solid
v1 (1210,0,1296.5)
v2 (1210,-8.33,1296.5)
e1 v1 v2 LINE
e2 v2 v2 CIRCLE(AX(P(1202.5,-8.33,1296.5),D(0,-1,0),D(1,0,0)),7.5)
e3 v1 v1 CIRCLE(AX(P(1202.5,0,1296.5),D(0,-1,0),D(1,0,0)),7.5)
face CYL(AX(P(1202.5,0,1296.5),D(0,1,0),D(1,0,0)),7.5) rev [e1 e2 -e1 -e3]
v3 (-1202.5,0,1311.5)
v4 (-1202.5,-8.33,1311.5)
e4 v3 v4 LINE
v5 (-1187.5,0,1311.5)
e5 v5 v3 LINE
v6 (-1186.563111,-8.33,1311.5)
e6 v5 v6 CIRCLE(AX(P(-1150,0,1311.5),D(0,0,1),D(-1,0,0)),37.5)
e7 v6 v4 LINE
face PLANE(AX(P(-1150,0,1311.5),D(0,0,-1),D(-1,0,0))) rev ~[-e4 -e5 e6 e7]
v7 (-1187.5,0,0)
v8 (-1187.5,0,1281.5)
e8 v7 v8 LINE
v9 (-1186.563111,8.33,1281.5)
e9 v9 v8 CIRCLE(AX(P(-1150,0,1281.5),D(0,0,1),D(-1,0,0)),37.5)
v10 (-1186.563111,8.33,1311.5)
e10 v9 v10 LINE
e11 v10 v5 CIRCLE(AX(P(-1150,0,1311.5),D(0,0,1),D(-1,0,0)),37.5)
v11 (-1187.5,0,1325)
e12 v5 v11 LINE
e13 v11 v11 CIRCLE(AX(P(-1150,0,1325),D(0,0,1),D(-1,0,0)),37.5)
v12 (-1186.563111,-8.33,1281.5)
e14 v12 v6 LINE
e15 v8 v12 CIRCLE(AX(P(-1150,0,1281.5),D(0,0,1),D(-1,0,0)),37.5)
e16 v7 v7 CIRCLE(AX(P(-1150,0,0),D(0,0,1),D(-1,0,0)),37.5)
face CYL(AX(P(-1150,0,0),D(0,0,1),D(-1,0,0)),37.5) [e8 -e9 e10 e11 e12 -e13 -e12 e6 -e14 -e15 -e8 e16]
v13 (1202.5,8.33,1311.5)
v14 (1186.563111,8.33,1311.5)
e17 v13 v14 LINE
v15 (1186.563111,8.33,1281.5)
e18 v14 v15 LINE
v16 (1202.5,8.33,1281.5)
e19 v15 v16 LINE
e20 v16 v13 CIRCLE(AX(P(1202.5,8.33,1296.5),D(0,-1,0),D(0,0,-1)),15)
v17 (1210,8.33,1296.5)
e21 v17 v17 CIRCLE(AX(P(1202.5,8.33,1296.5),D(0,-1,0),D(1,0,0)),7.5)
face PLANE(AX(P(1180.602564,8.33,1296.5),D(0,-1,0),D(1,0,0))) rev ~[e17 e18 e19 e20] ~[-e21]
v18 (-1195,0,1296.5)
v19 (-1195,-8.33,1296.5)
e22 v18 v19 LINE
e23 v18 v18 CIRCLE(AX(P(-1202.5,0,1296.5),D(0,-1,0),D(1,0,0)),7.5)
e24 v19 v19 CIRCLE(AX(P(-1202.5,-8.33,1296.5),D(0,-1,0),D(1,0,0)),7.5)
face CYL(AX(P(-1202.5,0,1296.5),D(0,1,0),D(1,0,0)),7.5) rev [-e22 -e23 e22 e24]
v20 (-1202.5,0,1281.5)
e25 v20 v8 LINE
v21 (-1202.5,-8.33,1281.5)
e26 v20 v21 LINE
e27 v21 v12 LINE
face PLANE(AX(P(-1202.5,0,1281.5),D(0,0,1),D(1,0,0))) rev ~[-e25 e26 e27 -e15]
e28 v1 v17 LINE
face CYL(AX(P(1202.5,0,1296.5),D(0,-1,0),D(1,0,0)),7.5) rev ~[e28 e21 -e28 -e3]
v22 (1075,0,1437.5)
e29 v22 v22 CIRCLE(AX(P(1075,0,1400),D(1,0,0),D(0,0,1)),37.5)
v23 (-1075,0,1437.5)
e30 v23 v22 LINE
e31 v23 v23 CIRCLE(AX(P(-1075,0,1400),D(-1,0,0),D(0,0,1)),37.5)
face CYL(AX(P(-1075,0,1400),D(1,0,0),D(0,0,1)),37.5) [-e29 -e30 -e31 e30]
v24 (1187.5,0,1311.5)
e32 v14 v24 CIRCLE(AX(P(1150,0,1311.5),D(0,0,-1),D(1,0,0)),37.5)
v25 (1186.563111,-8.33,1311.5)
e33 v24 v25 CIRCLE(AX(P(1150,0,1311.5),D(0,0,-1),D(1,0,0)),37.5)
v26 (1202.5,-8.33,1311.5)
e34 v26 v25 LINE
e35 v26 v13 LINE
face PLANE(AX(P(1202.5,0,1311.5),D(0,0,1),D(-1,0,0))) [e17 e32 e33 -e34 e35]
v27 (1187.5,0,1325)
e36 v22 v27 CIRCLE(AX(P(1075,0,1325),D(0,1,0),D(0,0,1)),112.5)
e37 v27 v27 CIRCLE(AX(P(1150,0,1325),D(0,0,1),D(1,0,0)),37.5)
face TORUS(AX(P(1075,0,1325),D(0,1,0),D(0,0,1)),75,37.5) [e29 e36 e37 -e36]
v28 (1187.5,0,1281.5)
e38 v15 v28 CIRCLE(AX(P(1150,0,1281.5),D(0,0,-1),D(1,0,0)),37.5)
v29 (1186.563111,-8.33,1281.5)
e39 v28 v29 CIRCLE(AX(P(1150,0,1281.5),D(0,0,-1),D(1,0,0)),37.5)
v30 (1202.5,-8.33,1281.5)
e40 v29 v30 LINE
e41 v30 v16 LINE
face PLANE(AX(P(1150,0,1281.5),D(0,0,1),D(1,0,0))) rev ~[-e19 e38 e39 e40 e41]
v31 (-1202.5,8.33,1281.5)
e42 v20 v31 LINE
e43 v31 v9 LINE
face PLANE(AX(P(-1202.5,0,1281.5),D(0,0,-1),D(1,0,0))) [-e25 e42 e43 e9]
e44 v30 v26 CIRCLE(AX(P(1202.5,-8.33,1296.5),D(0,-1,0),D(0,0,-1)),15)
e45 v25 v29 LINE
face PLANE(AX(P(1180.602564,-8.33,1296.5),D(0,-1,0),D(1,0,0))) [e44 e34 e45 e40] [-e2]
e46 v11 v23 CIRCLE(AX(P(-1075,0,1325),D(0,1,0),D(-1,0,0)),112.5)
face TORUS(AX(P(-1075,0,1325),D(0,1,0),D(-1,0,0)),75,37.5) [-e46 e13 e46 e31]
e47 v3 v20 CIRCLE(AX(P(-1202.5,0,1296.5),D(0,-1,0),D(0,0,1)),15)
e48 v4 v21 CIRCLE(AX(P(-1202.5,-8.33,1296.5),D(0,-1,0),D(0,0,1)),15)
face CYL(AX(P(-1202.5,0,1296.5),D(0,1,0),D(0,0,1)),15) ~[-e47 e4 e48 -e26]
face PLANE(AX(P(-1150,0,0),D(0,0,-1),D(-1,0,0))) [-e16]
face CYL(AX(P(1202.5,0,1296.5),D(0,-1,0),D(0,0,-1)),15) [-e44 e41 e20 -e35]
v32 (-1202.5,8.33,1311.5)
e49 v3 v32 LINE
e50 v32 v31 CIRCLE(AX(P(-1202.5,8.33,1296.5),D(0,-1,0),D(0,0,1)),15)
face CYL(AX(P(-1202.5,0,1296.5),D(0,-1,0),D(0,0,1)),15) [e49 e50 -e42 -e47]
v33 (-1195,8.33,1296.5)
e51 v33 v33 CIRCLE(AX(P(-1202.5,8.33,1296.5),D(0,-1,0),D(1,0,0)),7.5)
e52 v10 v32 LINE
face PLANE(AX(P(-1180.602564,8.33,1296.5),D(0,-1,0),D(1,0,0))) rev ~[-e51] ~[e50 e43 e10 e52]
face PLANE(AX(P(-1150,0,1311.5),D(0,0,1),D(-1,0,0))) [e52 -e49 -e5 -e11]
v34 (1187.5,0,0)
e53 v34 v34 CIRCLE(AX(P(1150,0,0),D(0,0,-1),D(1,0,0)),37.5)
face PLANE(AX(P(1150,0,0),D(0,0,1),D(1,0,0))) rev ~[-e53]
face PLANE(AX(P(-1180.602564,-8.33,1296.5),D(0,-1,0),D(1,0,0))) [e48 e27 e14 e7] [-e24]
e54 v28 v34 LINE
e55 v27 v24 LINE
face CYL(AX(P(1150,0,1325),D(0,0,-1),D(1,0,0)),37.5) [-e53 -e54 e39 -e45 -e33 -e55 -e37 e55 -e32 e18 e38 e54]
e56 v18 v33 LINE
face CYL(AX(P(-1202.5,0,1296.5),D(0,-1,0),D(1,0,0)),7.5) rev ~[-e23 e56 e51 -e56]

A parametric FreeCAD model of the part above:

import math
import FreeCAD as App
import Part
import Sketcher

V = App.Vector

doc = App.newDocument("Part")
body = doc.addObject("PartDesign::Body", "Body")

sketch1 = body.newObject("Sketcher::SketchObject", "Sketch")
sketch1.AttachmentSupport = (doc.getObject("XY_Plane"), [""])
sketch1.MapMode = "FlatFace"
sketch1.addGeometry(Part.Circle(V(1150, 0, 0), V(0, 0, 1), 38), False)
sketch1.addConstraint([
    Sketcher.Constraint("PointOnObject", 0, 3, -1),
    Sketcher.Constraint("Diameter", 0, 75.0),
    Sketcher.Constraint("DistanceX", -1, 1, 0, 3, 1150.0),
])

sketch2 = body.newObject("Sketcher::SketchObject", "Sketch001")
sketch2.AttachmentSupport = (doc.getObject("XZ_Plane"), [""])
sketch2.MapMode = "FlatFace"
sketch2.addGeometry([
    Part.LineSegment(V(-1150, 0, 0), V(-1150, 1325, 0)),
    Part.ArcOfCircle(Part.Circle(V(-1075, 1325, 0), V(0, 0, 1), 75), math.radians(90), math.radians(180)),
    Part.LineSegment(V(-1075, 1400, 0), V(1075, 1400, 0)),
    Part.ArcOfCircle(Part.Circle(V(1075, 1325, 0), V(0, 0, 1), 75), math.radians(0), math.radians(90)),
    Part.LineSegment(V(1150, 1325, 0), V(1150, 0, 0)),
], False)
sketch2.addConstraint([
    Sketcher.Constraint("Tangent", 0, 2, 1, 2),
    Sketcher.Constraint("Tangent", 1, 1, 2, 1),
    Sketcher.Constraint("Tangent", 2, 2, 3, 2),
    Sketcher.Constraint("Tangent", 3, 1, 4, 1),
    Sketcher.Constraint("Vertical", 0),
    Sketcher.Constraint("Horizontal", 2),
    Sketcher.Constraint("Vertical", 4),
    Sketcher.Constraint("Equal", 1, 3),
    Sketcher.Constraint("Symmetric", 0, 1, 4, 2, -1, 1),
    Sketcher.Constraint("PointOnObject", 0, 1, -1),
    Sketcher.Constraint("Radius", 1, 75.0),
    Sketcher.Constraint("DistanceX", 2, 1, 2, 2, 2150.0),
    Sketcher.Constraint("DistanceY", 0, 1, 0, 2, 1325.0),
])
doc.recompute()

additivepipe = body.newObject("PartDesign::AdditivePipe", "AdditivePipe")
additivepipe.Profile = sketch1
additivepipe.Spine = (sketch2, ["Edge1", "Edge2", "Edge3", "Edge4", "Edge5"])

sketch3 = body.newObject("Sketcher::SketchObject", "Sketch002")
sketch3.AttachmentSupport = (doc.getObject("XZ_Plane"), [""])
sketch3.MapMode = "FlatFace"
sketch3.addGeometry([
    Part.LineSegment(V(1202, 1312, 0), V(1150, 1312, 0)),
    Part.LineSegment(V(1150, 1312, 0), V(1150, 1282, 0)),
    Part.LineSegment(V(1150, 1282, 0), V(1202, 1282, 0)),
    Part.ArcOfCircle(Part.Circle(V(1202, 1296, 0), V(0, 0, 1), 15), math.radians(-90), math.radians(90)),
    Part.Circle(V(1202, 1296, 0), V(0, 0, 1), 8),
    Part.LineSegment(V(-1150, 1282, 0), V(-1150, 1312, 0)),
    Part.LineSegment(V(-1150, 1312, 0), V(-1202, 1312, 0)),
    Part.ArcOfCircle(Part.Circle(V(-1202, 1296, 0), V(0, 0, 1), 15), math.radians(90), math.radians(270)),
    Part.LineSegment(V(-1202, 1282, 0), V(-1150, 1282, 0)),
    Part.Circle(V(-1202, 1296, 0), V(0, 0, 1), 8),
], False)
sketch3.addConstraint([
    Sketcher.Constraint("Coincident", 0, 2, 1, 1),
    Sketcher.Constraint("Coincident", 1, 2, 2, 1),
    Sketcher.Constraint("Tangent", 2, 2, 3, 1),
    Sketcher.Constraint("Tangent", 3, 2, 0, 1),
    Sketcher.Constraint("Coincident", 5, 2, 6, 1),
    Sketcher.Constraint("Tangent", 6, 2, 7, 1),
    Sketcher.Constraint("Tangent", 7, 2, 8, 1),
    Sketcher.Constraint("Coincident", 8, 2, 5, 1),
    Sketcher.Constraint("Horizontal", 0),
    Sketcher.Constraint("Vertical", 1),
    Sketcher.Constraint("Horizontal", 2),
    Sketcher.Constraint("Vertical", 5),
    Sketcher.Constraint("Horizontal", 6),
    Sketcher.Constraint("Horizontal", 8),
    Sketcher.Constraint("Coincident", 4, 3, 3, 3),
    Sketcher.Constraint("Coincident", 9, 3, 7, 3),
    Sketcher.Constraint("Equal", 3, 7),
    Sketcher.Constraint("Equal", 4, 9),
    Sketcher.Constraint("Symmetric", 3, 3, 7, 3, -2),
    Sketcher.Constraint("Equal", 2, 6),
    Sketcher.Constraint("Diameter", 4, 15.0),
    Sketcher.Constraint("Radius", 3, 15.0),
    Sketcher.Constraint("DistanceX", 0, 2, 0, 1, 52.5),
    Sketcher.Constraint("DistanceX", -1, 1, 0, 2, 1150.0),
    Sketcher.Constraint("DistanceY", -1, 1, 3, 3, 1296.5),
])
pad1 = body.newObject("PartDesign::Pad", "Pad")
pad1.Profile = sketch3
pad1.Type = "TwoLengths"
pad1.Length = 8.33
pad1.Length2 = 8.33

doc.recompute()
